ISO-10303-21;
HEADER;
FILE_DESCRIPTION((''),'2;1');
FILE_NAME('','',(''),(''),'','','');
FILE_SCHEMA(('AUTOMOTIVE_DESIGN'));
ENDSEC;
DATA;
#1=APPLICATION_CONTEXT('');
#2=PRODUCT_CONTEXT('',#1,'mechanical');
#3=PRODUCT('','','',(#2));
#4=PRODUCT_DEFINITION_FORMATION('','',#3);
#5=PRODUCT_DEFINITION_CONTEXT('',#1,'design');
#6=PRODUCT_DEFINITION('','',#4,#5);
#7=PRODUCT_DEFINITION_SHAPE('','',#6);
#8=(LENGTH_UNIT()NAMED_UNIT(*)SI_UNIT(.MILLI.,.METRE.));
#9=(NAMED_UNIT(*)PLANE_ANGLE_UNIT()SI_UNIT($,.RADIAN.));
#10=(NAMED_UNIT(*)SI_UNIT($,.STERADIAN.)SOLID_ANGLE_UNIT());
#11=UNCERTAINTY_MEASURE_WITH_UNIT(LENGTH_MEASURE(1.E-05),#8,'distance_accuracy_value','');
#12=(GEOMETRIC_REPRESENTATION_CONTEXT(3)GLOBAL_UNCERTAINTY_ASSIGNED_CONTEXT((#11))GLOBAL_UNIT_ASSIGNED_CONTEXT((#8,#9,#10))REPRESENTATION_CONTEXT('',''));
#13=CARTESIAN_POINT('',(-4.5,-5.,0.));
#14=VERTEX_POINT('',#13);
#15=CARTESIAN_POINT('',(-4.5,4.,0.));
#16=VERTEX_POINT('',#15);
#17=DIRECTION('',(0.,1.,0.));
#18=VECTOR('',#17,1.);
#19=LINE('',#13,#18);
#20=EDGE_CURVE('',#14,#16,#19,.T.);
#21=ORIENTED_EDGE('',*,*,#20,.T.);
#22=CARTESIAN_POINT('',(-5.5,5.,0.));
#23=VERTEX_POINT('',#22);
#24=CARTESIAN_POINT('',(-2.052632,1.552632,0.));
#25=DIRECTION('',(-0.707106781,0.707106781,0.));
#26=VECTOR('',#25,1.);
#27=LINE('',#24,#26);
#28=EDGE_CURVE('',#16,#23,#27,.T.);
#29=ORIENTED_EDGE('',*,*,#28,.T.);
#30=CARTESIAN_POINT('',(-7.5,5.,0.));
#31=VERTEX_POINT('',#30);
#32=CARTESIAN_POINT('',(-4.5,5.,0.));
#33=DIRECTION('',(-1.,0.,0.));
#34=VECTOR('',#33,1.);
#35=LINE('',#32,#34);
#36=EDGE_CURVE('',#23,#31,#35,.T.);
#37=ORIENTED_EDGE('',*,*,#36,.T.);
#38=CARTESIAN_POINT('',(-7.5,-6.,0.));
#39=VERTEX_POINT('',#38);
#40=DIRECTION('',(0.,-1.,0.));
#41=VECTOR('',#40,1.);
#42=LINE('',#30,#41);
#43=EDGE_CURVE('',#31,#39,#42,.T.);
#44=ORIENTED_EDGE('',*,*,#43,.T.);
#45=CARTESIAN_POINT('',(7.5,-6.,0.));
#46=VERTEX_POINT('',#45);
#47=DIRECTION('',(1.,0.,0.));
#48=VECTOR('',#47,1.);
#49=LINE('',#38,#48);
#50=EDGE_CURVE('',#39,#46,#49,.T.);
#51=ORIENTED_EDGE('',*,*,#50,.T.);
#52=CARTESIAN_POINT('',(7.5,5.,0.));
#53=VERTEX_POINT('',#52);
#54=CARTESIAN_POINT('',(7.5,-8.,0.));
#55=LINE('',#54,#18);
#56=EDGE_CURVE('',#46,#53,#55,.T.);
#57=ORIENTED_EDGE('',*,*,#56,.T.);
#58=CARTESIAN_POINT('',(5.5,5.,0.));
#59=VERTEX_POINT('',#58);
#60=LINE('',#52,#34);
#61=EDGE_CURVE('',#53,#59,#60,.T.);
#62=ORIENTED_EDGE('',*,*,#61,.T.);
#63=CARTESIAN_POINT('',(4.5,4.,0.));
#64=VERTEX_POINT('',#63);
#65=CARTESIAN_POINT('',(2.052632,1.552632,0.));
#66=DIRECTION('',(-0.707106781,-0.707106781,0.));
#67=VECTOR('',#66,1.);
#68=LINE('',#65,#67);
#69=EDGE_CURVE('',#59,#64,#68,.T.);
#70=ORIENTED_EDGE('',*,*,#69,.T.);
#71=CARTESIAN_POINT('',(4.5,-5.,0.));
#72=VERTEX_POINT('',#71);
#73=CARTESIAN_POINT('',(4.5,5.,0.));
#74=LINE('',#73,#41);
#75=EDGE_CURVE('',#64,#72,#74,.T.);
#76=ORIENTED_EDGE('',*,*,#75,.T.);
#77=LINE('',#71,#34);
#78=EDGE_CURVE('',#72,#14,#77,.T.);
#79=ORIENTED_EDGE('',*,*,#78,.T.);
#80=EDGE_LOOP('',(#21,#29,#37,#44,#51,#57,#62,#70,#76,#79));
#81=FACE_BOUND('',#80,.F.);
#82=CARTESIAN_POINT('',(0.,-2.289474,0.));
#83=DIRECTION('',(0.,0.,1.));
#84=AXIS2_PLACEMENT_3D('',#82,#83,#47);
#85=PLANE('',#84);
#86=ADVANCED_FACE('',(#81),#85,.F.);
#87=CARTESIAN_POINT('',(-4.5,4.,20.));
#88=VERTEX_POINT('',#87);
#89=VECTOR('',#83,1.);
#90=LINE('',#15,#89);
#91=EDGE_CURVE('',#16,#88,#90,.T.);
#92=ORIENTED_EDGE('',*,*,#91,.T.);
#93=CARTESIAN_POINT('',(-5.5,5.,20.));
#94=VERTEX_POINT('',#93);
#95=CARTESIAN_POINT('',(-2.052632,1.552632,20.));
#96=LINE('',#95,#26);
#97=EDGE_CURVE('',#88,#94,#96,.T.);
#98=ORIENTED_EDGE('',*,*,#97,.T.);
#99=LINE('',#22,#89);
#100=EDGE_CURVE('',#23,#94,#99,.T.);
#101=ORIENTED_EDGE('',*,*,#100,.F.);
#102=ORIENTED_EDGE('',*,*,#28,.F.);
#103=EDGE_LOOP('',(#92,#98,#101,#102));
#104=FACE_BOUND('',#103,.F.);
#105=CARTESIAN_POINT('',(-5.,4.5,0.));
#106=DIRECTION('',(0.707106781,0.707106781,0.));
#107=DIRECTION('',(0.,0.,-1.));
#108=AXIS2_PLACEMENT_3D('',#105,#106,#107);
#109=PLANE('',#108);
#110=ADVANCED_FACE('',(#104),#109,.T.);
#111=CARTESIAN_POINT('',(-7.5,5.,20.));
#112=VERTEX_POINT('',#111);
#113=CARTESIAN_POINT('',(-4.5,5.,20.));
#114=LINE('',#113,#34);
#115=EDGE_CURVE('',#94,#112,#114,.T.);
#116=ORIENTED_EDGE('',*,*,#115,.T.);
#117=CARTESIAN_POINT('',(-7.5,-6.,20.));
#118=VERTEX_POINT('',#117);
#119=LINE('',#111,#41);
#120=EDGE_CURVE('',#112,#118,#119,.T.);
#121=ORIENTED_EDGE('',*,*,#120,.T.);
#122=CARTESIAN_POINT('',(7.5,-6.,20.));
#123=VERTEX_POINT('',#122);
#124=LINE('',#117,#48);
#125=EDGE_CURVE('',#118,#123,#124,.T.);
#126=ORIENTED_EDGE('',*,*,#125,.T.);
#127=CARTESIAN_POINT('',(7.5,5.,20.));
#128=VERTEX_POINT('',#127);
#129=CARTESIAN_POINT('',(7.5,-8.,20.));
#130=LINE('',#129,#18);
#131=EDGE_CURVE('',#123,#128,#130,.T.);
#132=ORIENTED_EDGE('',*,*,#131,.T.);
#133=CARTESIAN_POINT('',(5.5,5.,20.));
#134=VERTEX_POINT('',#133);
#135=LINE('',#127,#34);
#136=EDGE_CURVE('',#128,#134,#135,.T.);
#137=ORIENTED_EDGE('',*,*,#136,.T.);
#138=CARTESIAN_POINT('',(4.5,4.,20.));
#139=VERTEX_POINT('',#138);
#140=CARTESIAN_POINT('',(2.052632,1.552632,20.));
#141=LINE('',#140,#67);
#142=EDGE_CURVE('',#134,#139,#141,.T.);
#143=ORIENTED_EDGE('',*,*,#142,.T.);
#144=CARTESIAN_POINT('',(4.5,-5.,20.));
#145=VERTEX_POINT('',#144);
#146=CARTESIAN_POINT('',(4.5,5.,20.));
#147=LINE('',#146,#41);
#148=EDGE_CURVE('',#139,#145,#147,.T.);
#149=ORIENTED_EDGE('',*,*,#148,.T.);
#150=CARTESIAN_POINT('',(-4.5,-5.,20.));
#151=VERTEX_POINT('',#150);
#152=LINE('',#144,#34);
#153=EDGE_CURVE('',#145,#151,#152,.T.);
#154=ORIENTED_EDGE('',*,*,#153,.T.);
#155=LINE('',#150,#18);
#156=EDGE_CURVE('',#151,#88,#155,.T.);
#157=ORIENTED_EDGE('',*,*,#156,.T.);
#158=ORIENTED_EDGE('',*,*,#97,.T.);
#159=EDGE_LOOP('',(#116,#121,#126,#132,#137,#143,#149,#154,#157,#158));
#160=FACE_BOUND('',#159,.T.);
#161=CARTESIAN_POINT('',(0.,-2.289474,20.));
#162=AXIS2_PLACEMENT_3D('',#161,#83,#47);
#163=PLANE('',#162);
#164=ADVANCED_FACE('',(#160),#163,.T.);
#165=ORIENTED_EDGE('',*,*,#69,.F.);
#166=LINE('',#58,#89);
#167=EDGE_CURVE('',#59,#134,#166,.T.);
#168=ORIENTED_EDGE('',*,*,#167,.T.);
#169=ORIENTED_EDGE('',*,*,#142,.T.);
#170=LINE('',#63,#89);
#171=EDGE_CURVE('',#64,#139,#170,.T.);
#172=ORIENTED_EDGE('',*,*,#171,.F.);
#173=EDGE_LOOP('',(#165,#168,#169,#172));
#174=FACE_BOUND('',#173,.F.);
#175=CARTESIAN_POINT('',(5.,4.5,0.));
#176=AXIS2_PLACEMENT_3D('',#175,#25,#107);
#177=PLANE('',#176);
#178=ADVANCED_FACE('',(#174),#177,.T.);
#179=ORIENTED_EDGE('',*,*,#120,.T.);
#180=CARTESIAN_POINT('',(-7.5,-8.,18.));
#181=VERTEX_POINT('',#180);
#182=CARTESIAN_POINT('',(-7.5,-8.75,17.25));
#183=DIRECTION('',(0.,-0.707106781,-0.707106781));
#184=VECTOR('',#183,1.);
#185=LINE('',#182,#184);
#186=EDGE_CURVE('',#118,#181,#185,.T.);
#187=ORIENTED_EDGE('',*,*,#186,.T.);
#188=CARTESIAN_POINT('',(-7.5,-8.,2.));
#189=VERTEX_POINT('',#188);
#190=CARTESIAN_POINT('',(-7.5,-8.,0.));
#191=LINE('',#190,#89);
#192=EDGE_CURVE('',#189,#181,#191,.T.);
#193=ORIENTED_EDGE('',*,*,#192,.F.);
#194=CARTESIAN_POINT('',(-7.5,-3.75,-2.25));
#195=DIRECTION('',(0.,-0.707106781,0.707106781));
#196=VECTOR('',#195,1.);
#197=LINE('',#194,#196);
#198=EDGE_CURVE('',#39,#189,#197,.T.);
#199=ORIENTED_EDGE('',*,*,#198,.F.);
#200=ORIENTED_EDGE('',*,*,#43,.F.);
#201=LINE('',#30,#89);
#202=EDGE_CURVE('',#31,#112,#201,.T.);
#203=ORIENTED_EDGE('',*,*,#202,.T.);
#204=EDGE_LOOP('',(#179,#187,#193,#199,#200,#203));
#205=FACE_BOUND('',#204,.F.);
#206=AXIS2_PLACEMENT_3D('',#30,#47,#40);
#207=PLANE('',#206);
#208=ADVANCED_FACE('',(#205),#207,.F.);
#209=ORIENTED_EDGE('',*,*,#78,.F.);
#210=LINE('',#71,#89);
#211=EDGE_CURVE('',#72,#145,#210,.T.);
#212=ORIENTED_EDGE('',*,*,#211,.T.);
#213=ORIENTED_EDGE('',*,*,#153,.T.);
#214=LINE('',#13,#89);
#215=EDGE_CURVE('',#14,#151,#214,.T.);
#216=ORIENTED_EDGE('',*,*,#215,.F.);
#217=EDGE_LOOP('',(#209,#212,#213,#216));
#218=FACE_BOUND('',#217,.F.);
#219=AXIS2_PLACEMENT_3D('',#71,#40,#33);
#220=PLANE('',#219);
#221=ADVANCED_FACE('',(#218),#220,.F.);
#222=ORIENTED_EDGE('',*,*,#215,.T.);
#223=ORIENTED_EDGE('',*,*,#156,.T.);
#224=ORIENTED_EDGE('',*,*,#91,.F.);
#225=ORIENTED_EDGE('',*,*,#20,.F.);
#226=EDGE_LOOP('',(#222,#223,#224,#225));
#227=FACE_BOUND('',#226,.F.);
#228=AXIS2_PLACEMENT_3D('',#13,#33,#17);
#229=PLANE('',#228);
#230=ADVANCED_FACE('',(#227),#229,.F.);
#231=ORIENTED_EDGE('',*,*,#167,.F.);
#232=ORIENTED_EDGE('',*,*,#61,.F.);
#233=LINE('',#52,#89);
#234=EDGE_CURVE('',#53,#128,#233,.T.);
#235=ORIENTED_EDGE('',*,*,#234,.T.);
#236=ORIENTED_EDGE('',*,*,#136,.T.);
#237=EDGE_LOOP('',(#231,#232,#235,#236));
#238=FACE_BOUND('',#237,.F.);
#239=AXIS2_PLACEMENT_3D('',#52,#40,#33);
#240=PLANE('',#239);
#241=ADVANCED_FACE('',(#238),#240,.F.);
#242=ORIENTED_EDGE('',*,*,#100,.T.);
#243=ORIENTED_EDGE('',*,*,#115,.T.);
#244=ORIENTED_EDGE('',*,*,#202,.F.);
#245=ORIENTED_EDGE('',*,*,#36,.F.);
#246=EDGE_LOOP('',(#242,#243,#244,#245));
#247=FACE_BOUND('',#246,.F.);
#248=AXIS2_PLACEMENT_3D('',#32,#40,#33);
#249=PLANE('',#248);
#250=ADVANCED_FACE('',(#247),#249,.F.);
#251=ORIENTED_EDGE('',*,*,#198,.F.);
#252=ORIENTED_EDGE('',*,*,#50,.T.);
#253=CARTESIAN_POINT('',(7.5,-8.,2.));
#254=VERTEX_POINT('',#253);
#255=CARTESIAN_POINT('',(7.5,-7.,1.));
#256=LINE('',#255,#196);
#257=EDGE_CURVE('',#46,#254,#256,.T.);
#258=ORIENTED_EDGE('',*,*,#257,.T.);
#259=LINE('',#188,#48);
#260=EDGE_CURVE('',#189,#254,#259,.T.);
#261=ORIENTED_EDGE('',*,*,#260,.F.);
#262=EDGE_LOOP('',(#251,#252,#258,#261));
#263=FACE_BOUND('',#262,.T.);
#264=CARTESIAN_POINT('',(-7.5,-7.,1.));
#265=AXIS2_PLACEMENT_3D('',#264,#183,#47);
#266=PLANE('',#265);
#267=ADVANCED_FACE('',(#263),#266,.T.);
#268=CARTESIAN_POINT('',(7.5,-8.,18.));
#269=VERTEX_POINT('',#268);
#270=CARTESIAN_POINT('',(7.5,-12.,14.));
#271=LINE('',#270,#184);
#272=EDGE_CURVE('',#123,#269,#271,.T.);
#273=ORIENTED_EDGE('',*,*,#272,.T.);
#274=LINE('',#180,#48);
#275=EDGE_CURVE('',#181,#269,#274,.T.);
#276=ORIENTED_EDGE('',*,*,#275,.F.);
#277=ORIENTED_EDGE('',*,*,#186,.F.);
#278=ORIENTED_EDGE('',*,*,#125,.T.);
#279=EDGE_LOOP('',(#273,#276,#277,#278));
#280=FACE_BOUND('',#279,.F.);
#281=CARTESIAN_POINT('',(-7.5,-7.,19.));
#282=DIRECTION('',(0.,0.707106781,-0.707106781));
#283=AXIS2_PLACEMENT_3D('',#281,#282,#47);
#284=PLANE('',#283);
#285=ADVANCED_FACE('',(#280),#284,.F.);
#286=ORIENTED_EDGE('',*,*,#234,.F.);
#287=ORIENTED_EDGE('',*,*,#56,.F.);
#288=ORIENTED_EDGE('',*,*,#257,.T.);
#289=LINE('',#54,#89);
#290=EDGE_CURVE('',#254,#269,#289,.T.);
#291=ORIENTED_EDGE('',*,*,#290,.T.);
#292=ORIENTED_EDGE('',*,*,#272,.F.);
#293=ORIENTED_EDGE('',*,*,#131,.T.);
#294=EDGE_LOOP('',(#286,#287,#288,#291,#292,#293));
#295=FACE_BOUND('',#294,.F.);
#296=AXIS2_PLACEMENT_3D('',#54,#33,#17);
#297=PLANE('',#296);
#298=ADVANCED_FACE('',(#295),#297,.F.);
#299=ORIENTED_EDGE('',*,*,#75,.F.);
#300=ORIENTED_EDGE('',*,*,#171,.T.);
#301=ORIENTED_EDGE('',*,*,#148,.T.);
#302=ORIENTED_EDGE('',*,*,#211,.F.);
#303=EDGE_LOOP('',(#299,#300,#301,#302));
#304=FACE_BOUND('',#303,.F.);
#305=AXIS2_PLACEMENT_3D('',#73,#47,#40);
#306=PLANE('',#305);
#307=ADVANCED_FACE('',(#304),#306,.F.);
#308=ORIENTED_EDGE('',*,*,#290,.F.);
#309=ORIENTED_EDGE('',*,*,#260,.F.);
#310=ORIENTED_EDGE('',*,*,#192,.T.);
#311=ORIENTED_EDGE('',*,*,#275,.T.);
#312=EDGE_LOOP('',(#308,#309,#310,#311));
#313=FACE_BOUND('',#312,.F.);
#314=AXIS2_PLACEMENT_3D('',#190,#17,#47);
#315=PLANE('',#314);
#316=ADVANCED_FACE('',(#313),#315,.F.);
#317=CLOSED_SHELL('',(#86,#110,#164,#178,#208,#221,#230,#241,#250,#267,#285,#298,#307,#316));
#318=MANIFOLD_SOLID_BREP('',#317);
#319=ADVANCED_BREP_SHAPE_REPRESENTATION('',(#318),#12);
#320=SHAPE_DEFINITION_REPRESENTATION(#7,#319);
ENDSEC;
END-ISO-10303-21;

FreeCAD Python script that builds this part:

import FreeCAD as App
import Part
import Sketcher
from FreeCAD import Vector


def edges_at(feature, points):
    """Names of the edges that pass closest to the given points."""
    edges = feature.Shape.Edges
    near = lambda p: min(range(len(edges)), key=lambda i: edges[i].distToShape(Part.Vertex(*p))[0])
    return sorted({f"Edge{near(p) + 1}" for p in points})

doc = App.newDocument("Part")
body = doc.addObject("PartDesign::Body", "Body")

# Sketch on XY plane
sketch1 = body.newObject("Sketcher::SketchObject", "Sketch")
sketch1.AttachmentSupport = (doc.getObject("XY_Plane"), [""])
sketch1.MapMode = "FlatFace"
sketch1.addGeometry([
    Part.LineSegment(Vector(-7.5, 5, 0), Vector(-7.5, -8, 0)),  # 0
    Part.LineSegment(Vector(-7.5, -8, 0), Vector(7.5, -8, 0)),  # 1
    Part.LineSegment(Vector(7.5, -8, 0), Vector(7.5, 5, 0)),  # 2
    Part.LineSegment(Vector(7.5, 5, 0), Vector(4.5, 5, 0)),  # 3
    Part.LineSegment(Vector(4.5, 5, 0), Vector(4.5, -5, 0)),  # 4
    Part.LineSegment(Vector(4.5, -5, 0), Vector(-4.5, -5, 0)),  # 5
    Part.LineSegment(Vector(-4.5, -5, 0), Vector(-4.5, 5, 0)),  # 6
    Part.LineSegment(Vector(-4.5, 5, 0), Vector(-7.5, 5, 0)),  # 7
], False)
sketch1.addConstraint([
    Sketcher.Constraint("Coincident", 0, 2, 1, 1),
    Sketcher.Constraint("Coincident", 1, 2, 2, 1),
    Sketcher.Constraint("Coincident", 2, 2, 3, 1),
    Sketcher.Constraint("Coincident", 3, 2, 4, 1),
    Sketcher.Constraint("Coincident", 4, 2, 5, 1),
    Sketcher.Constraint("Coincident", 5, 2, 6, 1),
    Sketcher.Constraint("Coincident", 6, 2, 7, 1),
    Sketcher.Constraint("Coincident", 7, 2, 0, 1),
    Sketcher.Constraint("Vertical", 0),
    Sketcher.Constraint("Horizontal", 1),
    Sketcher.Constraint("Vertical", 2),
    Sketcher.Constraint("Horizontal", 3),
    Sketcher.Constraint("Vertical", 4),
    Sketcher.Constraint("Horizontal", 5),
    Sketcher.Constraint("Vertical", 6),
    Sketcher.Constraint("Horizontal", 7),
    Sketcher.Constraint("Symmetric", 3, 2, 5, 2, -1, 1),
    Sketcher.Constraint("Symmetric", 2, 2, 7, 2, -2),
    Sketcher.Constraint("DistanceX", 1, 1, 1, 2, 15.0),
    Sketcher.Constraint("DistanceX", 3, 2, 3, 1, 3.0),
    Sketcher.Constraint("DistanceY", 0, 2, 0, 1, 13.0),
    Sketcher.Constraint("DistanceY", 4, 2, 4, 1, 10.0),
])
pad1 = body.newObject("PartDesign::Pad", "Pad")
pad1.Profile = sketch1
pad1.Length = 20
doc.recompute()

chamfer = body.newObject("PartDesign::Chamfer", "Chamfer")
chamfer.Base = (pad1, edges_at(pad1, [(-4.5, 5, 10), (4.5, 5, 10)]))
chamfer.Size = 1
doc.recompute()

chamfer2 = body.newObject("PartDesign::Chamfer", "Chamfer001")
chamfer2.Base = (chamfer, edges_at(chamfer, [(0, -8, 20), (0, -8, 0)]))
chamfer2.Size = 2

doc.recompute()
